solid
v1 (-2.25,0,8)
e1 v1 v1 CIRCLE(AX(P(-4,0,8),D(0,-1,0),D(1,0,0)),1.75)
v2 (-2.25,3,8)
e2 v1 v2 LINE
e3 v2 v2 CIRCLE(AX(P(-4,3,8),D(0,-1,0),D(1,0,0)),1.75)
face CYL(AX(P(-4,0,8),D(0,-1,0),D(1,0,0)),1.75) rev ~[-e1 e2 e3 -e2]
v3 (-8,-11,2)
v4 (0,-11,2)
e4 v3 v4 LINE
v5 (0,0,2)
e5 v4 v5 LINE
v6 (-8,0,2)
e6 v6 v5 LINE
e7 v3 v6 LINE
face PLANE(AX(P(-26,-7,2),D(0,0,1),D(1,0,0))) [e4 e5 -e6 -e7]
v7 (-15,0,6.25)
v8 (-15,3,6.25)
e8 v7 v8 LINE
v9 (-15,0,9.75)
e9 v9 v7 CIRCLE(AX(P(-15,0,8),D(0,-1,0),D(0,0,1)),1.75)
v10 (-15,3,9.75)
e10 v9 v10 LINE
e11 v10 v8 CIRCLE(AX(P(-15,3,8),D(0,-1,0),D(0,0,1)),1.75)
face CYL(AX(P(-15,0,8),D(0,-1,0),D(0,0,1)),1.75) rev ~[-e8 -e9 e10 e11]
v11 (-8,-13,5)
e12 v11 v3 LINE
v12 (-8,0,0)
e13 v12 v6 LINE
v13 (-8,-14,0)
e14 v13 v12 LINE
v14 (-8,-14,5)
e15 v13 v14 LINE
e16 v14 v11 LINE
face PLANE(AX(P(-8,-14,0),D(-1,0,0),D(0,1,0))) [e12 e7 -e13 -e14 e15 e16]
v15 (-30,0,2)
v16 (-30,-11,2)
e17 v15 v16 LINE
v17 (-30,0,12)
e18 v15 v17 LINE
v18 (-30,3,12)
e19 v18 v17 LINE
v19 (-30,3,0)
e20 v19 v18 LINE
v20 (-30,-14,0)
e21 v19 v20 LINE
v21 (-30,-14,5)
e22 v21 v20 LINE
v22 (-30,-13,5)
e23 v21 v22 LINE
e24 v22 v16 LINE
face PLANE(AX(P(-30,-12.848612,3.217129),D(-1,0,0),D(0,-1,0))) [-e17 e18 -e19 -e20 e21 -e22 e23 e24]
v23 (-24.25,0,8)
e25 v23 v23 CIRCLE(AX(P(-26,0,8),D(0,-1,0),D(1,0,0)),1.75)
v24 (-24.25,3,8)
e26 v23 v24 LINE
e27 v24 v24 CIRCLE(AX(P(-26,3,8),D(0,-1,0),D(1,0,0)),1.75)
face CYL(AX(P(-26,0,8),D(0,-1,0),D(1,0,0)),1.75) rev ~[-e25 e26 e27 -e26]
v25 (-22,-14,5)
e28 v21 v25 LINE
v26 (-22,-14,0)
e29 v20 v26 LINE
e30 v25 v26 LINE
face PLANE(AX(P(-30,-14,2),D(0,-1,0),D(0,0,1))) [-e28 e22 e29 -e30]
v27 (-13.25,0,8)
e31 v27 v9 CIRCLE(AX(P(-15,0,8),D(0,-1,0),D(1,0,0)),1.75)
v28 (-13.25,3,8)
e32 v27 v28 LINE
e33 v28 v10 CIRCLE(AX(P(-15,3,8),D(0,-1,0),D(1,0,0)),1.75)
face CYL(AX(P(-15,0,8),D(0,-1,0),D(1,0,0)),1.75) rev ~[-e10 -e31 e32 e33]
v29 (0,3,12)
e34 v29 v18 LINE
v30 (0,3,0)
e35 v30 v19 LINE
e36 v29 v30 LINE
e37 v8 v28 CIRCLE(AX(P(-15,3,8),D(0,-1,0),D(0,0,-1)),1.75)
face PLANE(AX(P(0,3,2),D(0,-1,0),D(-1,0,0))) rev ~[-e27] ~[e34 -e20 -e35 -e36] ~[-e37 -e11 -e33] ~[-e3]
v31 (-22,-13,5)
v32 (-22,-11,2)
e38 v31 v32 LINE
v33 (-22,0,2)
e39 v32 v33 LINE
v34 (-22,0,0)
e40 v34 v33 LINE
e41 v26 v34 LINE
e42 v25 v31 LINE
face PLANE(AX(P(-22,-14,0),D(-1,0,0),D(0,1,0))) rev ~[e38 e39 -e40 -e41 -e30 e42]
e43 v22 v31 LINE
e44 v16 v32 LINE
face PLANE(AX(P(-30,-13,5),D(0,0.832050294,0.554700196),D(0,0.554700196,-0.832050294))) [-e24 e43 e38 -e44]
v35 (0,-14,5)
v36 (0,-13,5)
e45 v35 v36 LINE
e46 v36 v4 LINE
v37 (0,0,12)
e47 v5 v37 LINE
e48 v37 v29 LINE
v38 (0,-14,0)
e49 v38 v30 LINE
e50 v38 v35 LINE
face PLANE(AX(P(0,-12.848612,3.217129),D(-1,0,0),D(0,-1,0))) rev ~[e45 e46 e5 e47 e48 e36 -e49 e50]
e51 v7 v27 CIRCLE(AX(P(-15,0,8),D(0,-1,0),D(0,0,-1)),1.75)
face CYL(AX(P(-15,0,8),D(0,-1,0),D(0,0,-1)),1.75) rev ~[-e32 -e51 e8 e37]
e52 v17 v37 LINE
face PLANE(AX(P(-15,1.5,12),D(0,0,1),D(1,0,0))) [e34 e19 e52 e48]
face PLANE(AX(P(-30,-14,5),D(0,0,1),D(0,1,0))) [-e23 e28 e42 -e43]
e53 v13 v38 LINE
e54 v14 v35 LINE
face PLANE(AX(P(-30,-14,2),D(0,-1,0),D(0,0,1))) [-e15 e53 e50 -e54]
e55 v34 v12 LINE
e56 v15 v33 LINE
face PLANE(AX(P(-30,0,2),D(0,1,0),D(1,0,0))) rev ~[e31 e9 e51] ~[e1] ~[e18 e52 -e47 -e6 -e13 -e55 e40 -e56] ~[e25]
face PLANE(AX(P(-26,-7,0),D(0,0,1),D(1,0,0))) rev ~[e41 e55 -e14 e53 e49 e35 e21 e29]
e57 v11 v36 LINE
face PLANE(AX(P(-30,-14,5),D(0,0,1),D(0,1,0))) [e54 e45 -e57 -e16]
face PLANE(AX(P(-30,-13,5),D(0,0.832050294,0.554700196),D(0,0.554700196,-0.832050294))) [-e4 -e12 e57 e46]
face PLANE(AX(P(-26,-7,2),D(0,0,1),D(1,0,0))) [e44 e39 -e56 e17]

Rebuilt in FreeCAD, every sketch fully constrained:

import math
import FreeCAD as App
import Part
import Sketcher

V = App.Vector
Q = App.Units.Quantity

doc = App.newDocument("Part")
body = doc.addObject("PartDesign::Body", "Body")

# Sketch on XY plane
sketch1 = body.newObject("Sketcher::SketchObject", "Sketch")
sketch1.AttachmentSupport = (doc.getObject("XY_Plane"), [""])
sketch1.MapMode = "FlatFace"
sketch1.addGeometry(Part.LineSegment(V(-30, -14, 0), V(-22, -14, 0)), False)
sketch1.addGeometry(Part.LineSegment(V(-22, -14, 0), V(-22, 0, 0)), False)
sketch1.addGeometry(Part.LineSegment(V(-22, 0, 0), V(-8, 0, 0)), False)
sketch1.addGeometry(Part.LineSegment(V(-8, 0, 0), V(-8, -14, 0)), False)
sketch1.addGeometry(Part.LineSegment(V(-8, -14, 0), V(0, -14, 0)), False)
sketch1.addGeometry(Part.LineSegment(V(0, -14, 0), V(0, 3, 0)), False)
sketch1.addGeometry(Part.LineSegment(V(0, 3, 0), V(-30, 3, 0)), False)
sketch1.addGeometry(Part.LineSegment(V(-30, 3, 0), V(-30, -14, 0)), False)
sketch1.addConstraint(Sketcher.Constraint("Coincident", 0, 2, 1, 1))
sketch1.addConstraint(Sketcher.Constraint("Coincident", 1, 2, 2, 1))
sketch1.addConstraint(Sketcher.Constraint("Coincident", 2, 2, 3, 1))
sketch1.addConstraint(Sketcher.Constraint("Coincident", 3, 2, 4, 1))
sketch1.addConstraint(Sketcher.Constraint("Coincident", 4, 2, 5, 1))
sketch1.addConstraint(Sketcher.Constraint("Coincident", 5, 2, 6, 1))
sketch1.addConstraint(Sketcher.Constraint("Coincident", 6, 2, 7, 1))
sketch1.addConstraint(Sketcher.Constraint("Coincident", 7, 2, 0, 1))
sketch1.addConstraint(Sketcher.Constraint("Horizontal", 0))
sketch1.addConstraint(Sketcher.Constraint("Vertical", 1))
sketch1.addConstraint(Sketcher.Constraint("Horizontal", 2))
sketch1.addConstraint(Sketcher.Constraint("Vertical", 3))
sketch1.addConstraint(Sketcher.Constraint("Horizontal", 4))
sketch1.addConstraint(Sketcher.Constraint("Vertical", 5))
sketch1.addConstraint(Sketcher.Constraint("Horizontal", 6))
sketch1.addConstraint(Sketcher.Constraint("Vertical", 7))
sketch1.addConstraint(Sketcher.Constraint("PointOnObject", 1, 2, -1))
sketch1.addConstraint(Sketcher.Constraint("PointOnObject", 4, 2, -2))
sketch1.addConstraint(Sketcher.Constraint("Horizontal", 0, 2, 3, 2))
sketch1.addConstraint(Sketcher.Constraint("Equal", 0, 4))
sketch1.addConstraint(Sketcher.Constraint("Equal", 2, 1))
sketch1.addConstraint(Sketcher.Constraint("DistanceX", 0, 1, 0, 2, Q("8 mm")))
sketch1.addConstraint(Sketcher.Constraint("DistanceX", 2, 1, 2, 2, Q("14 mm")))
sketch1.addConstraint(Sketcher.Constraint("DistanceY", 5, 1, 5, 2, Q("17 mm")))
pad1 = body.newObject("PartDesign::Pad", "Pad")
pad1.Profile = sketch1
pad1.Length = 2

# Sketch on XY plane
sketch2 = body.newObject("Sketcher::SketchObject", "Sketch001")
sketch2.AttachmentSupport = (doc.getObject("XY_Plane"), [""])
sketch2.MapMode = "FlatFace"
sketch2.AttachmentOffset = App.Placement(V(0, 0, 2), App.Rotation())
sketch2.addGeometry(Part.LineSegment(V(0, 3, 0), V(-30, 3, 0)), False)
sketch2.addGeometry(Part.LineSegment(V(-30, 3, 0), V(-30, 0, 0)), False)
sketch2.addGeometry(Part.LineSegment(V(-30, 0, 0), V(0, 0, 0)), False)
sketch2.addGeometry(Part.LineSegment(V(0, 0, 0), V(0, 3, 0)), False)
sketch2.addConstraint(Sketcher.Constraint("Coincident", 0, 2, 1, 1))
sketch2.addConstraint(Sketcher.Constraint("Coincident", 1, 2, 2, 1))
sketch2.addConstraint(Sketcher.Constraint("Coincident", 2, 2, 3, 1))
sketch2.addConstraint(Sketcher.Constraint("Coincident", 3, 2, 0, 1))
sketch2.addConstraint(Sketcher.Constraint("Horizontal", 0))
sketch2.addConstraint(Sketcher.Constraint("Vertical", 1))
sketch2.addConstraint(Sketcher.Constraint("Horizontal", 2))
sketch2.addConstraint(Sketcher.Constraint("Vertical", 3))
sketch2.addConstraint(Sketcher.Constraint("Coincident", 2, 2, -1, 1))
sketch2.addConstraint(Sketcher.Constraint("DistanceX", 0, 2, 0, 1, Q("30 mm")))
sketch2.addConstraint(Sketcher.Constraint("DistanceY", 1, 2, 1, 1, Q("3 mm")))
pad2 = body.newObject("PartDesign::Pad", "Pad001")
pad2.Profile = sketch2
pad2.Length = 10

# Sketch on XZ plane
sketch3 = body.newObject("Sketcher::SketchObject", "Sketch002")
sketch3.AttachmentSupport = (doc.getObject("XZ_Plane"), [""])
sketch3.MapMode = "FlatFace"
sketch3.addGeometry(Part.Circle(V(-26, 8, 0), V(0, 0, 1), 1.75), False)
sketch3.addGeometry(Part.ArcOfCircle(Part.Circle(V(-15, 8, 0), V(0, 0, 1), 1.75), math.radians(90), math.radians(270)), False)
sketch3.addGeometry(Part.ArcOfCircle(Part.Circle(V(-15, 8, 0), V(0, 0, 1), 1.75), math.radians(-90), math.radians(0)), False)
sketch3.addGeometry(Part.ArcOfCircle(Part.Circle(V(-15, 8, 0), V(0, 0, 1), 1.75), math.radians(0), math.radians(90)), False)
sketch3.addGeometry(Part.Circle(V(-4, 8, 0), V(0, 0, 1), 1.75), False)
sketch3.addConstraint(Sketcher.Constraint("Tangent", 1, 2, 2, 1))
sketch3.addConstraint(Sketcher.Constraint("Tangent", 2, 2, 3, 1))
sketch3.addConstraint(Sketcher.Constraint("Tangent", 3, 2, 1, 1))
sketch3.addConstraint(Sketcher.Constraint("Equal", 0, 1))
sketch3.addConstraint(Sketcher.Constraint("Equal", 3, 4))
sketch3.addConstraint(Sketcher.Constraint("Horizontal", 0, 3, 1, 3))
sketch3.addConstraint(Sketcher.Constraint("Horizontal", 3, 3, 4, 3))
sketch3.addConstraint(Sketcher.Constraint("Horizontal", 4, 3, 2, 2))
sketch3.addConstraint(Sketcher.Constraint("Vertical", 3, 3, 1, 2))
sketch3.addConstraint(Sketcher.Constraint("Vertical", 1, 2, 3, 2))
sketch3.addConstraint(Sketcher.Constraint("Diameter", 0, Q("3.5 mm")))
sketch3.addConstraint(Sketcher.Constraint("DistanceX", 0, 3, -1, 1, Q("26 mm")))
sketch3.addConstraint(Sketcher.Constraint("DistanceY", -1, 1, 0, 3, Q("8 mm")))
sketch3.addConstraint(Sketcher.Constraint("DistanceX", 1, 3, -1, 1, Q("15 mm")))
sketch3.addConstraint(Sketcher.Constraint("DistanceX", 4, 3, -1, 1, Q("4 mm")))
pocket1 = body.newObject("PartDesign::Pocket", "Pocket")
pocket1.Profile = sketch3
pocket1.Length = 25

# Sketch on YZ plane
sketch4 = body.newObject("Sketcher::SketchObject", "Sketch003")
sketch4.AttachmentSupport = (doc.getObject("YZ_Plane"), [""])
sketch4.MapMode = "FlatFace"
sketch4.AttachmentOffset = App.Placement(V(0, 0, -30), App.Rotation())
sketch4.addGeometry(Part.LineSegment(V(-11, 2, 0), V(-14, 2, 0)), False)
sketch4.addGeometry(Part.LineSegment(V(-14, 2, 0), V(-14, 5, 0)), False)
sketch4.addGeometry(Part.LineSegment(V(-14, 5, 0), V(-13, 5, 0)), False)
sketch4.addGeometry(Part.LineSegment(V(-13, 5, 0), V(-11, 2, 0)), False)
sketch4.addConstraint(Sketcher.Constraint("Coincident", 0, 2, 1, 1))
sketch4.addConstraint(Sketcher.Constraint("Coincident", 1, 2, 2, 1))
sketch4.addConstraint(Sketcher.Constraint("Coincident", 2, 2, 3, 1))
sketch4.addConstraint(Sketcher.Constraint("Coincident", 3, 2, 0, 1))
sketch4.addConstraint(Sketcher.Constraint("Horizontal", 0))
sketch4.addConstraint(Sketcher.Constraint("Vertical", 1))
sketch4.addConstraint(Sketcher.Constraint("Horizontal", 2))
sketch4.addConstraint(Sketcher.Constraint("Equal", 0, 1))
sketch4.addConstraint(Sketcher.Constraint("DistanceX", 0, 2, 0, 1, Q("3 mm")))
sketch4.addConstraint(Sketcher.Constraint("DistanceX", 2, 1, 2, 2, Q("1 mm")))
sketch4.addConstraint(Sketcher.Constraint("DistanceX", 0, 2, -1, 1, Q("14 mm")))
sketch4.addConstraint(Sketcher.Constraint("DistanceY", -1, 1, 0, 2, Q("2 mm")))
pad3 = body.newObject("PartDesign::Pad", "Pad002")
pad3.Profile = sketch4
pad3.Length = 30

# Sketch on XY plane
sketch5 = body.newObject("Sketcher::SketchObject", "Sketch004")
sketch5.AttachmentSupport = (doc.getObject("XY_Plane"), [""])
sketch5.MapMode = "FlatFace"
sketch5.AttachmentOffset = App.Placement(V(0, 0, 2), App.Rotation())
sketch5.addGeometry(Part.LineSegment(V(-22, -14, 0), V(-22, -11, 0)), False)
sketch5.addGeometry(Part.LineSegment(V(-22, -11, 0), V(-8, -11, 0)), False)
sketch5.addGeometry(Part.LineSegment(V(-8, -11, 0), V(-8, -14, 0)), False)
sketch5.addGeometry(Part.LineSegment(V(-8, -14, 0), V(-22, -14, 0)), False)
sketch5.addConstraint(Sketcher.Constraint("Coincident", 0, 2, 1, 1))
sketch5.addConstraint(Sketcher.Constraint("Coincident", 1, 2, 2, 1))
sketch5.addConstraint(Sketcher.Constraint("Coincident", 2, 2, 3, 1))
sketch5.addConstraint(Sketcher.Constraint("Coincident", 3, 2, 0, 1))
sketch5.addConstraint(Sketcher.Constraint("Vertical", 0))
sketch5.addConstraint(Sketcher.Constraint("Horizontal", 1))
sketch5.addConstraint(Sketcher.Constraint("Vertical", 2))
sketch5.addConstraint(Sketcher.Constraint("Horizontal", 3))
sketch5.addConstraint(Sketcher.Constraint("DistanceX", 1, 1, 1, 2, Q("14 mm")))
sketch5.addConstraint(Sketcher.Constraint("DistanceY", 0, 1, 0, 2, Q("3 mm")))
sketch5.addConstraint(Sketcher.Constraint("DistanceX", 0, 2, -1, 1, Q("22 mm")))
sketch5.addConstraint(Sketcher.Constraint("DistanceY", 0, 2, -1, 1, Q("11 mm")))
pocket2 = body.newObject("PartDesign::Pocket", "Pocket001")
pocket2.Profile = sketch5
pocket2.Length = 25
pocket2.Reversed = True

doc.recompute()
